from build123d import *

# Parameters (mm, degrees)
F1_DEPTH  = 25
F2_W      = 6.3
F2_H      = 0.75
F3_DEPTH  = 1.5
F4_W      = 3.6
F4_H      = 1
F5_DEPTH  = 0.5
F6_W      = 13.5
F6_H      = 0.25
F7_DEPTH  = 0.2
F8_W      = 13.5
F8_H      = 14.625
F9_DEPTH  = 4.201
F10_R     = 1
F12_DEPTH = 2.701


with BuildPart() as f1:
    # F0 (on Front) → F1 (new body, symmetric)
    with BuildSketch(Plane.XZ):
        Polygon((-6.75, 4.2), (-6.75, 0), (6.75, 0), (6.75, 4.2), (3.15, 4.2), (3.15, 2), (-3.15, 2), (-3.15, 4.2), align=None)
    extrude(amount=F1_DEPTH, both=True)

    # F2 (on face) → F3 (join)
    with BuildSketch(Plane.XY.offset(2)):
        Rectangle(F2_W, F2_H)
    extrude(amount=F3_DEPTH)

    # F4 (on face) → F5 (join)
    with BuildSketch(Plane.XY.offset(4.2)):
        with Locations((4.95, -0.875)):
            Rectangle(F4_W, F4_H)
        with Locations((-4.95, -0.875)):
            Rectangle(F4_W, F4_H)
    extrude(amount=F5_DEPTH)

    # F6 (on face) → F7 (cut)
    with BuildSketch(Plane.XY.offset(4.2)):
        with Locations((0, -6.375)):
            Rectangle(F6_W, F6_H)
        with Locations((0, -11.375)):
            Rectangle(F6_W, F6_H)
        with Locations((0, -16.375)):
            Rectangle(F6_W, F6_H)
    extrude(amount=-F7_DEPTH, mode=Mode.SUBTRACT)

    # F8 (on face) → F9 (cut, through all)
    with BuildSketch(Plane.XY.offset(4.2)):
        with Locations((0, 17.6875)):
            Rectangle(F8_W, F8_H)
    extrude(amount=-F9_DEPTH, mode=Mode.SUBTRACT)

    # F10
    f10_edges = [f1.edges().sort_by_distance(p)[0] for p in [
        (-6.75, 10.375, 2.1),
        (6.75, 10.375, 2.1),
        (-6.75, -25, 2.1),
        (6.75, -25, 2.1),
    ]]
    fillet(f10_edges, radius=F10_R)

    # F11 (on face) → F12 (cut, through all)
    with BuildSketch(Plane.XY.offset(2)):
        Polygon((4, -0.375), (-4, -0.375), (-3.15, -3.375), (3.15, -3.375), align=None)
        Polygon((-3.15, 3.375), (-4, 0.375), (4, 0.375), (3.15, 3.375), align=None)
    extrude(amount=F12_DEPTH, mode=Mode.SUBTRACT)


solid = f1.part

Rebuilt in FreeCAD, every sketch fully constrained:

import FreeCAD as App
import Part
import Sketcher

V = App.Vector
Q = App.Units.Quantity


def edges_at(feature, points):
    """Names of the edges that pass closest to the given points."""
    edges = feature.Shape.Edges
    near = lambda p: min(range(len(edges)), key=lambda i: edges[i].distToShape(Part.Vertex(*p))[0])
    return sorted({f"Edge{near(p) + 1}" for p in points})

doc = App.newDocument("Part")
body = doc.addObject("PartDesign::Body", "Body")

# Sketch on XZ plane
sketch1 = doc.addObject("Sketcher::SketchObject", "Sketch")
body.addObject(sketch1)
sketch1.AttachmentSupport = (doc.XZ_Plane, [""])
sketch1.MapMode = "FlatFace"
sketch1.addGeometry(Part.LineSegment(V(-6.8, 4.2, 0), V(-6.8, 0, 0)), False)
sketch1.addGeometry(Part.LineSegment(V(-6.8, 0, 0), V(6.8, 0, 0)), False)
sketch1.addGeometry(Part.LineSegment(V(6.8, 0, 0), V(6.8, 4.2, 0)), False)
sketch1.addGeometry(Part.LineSegment(V(6.8, 4.2, 0), V(3.1, 4.2, 0)), False)
sketch1.addGeometry(Part.LineSegment(V(3.1, 4.2, 0), V(3.1, 2, 0)), False)
sketch1.addGeometry(Part.LineSegment(V(3.1, 2, 0), V(-3.1, 2, 0)), False)
sketch1.addGeometry(Part.LineSegment(V(-3.1, 2, 0), V(-3.1, 4.2, 0)), False)
sketch1.addGeometry(Part.LineSegment(V(-3.1, 4.2, 0), V(-6.8, 4.2, 0)), False)
sketch1.addConstraint(Sketcher.Constraint("Coincident", 0, 2, 1, 1))
sketch1.addConstraint(Sketcher.Constraint("Coincident", 1, 2, 2, 1))
sketch1.addConstraint(Sketcher.Constraint("Coincident", 2, 2, 3, 1))
sketch1.addConstraint(Sketcher.Constraint("Coincident", 3, 2, 4, 1))
sketch1.addConstraint(Sketcher.Constraint("Coincident", 4, 2, 5, 1))
sketch1.addConstraint(Sketcher.Constraint("Coincident", 5, 2, 6, 1))
sketch1.addConstraint(Sketcher.Constraint("Coincident", 6, 2, 7, 1))
sketch1.addConstraint(Sketcher.Constraint("Coincident", 7, 2, 0, 1))
sketch1.addConstraint(Sketcher.Constraint("Vertical", 0))
sketch1.addConstraint(Sketcher.Constraint("Horizontal", 1))
sketch1.addConstraint(Sketcher.Constraint("Vertical", 2))
sketch1.addConstraint(Sketcher.Constraint("Horizontal", 3))
sketch1.addConstraint(Sketcher.Constraint("Vertical", 4))
sketch1.addConstraint(Sketcher.Constraint("Horizontal", 5))
sketch1.addConstraint(Sketcher.Constraint("Vertical", 6))
sketch1.addConstraint(Sketcher.Constraint("Horizontal", 7))
sketch1.addConstraint(Sketcher.Constraint("Symmetric", 0, 2, 1, 2, -1, 1))
sketch1.addConstraint(Sketcher.Constraint("Symmetric", 3, 2, 6, 2, -2))
sketch1.addConstraint(Sketcher.Constraint("DistanceX", 1, 1, 1, 2, Q("13.5 mm")))
sketch1.addConstraint(Sketcher.Constraint("DistanceX", 3, 2, 3, 1, Q("3.6 mm")))
sketch1.addConstraint(Sketcher.Constraint("DistanceY", 0, 2, 0, 1, Q("4.2 mm")))
sketch1.addConstraint(Sketcher.Constraint("DistanceY", 4, 2, 4, 1, Q("2.2 mm")))
pad1 = doc.addObject("PartDesign::Pad", "Pad")
body.addObject(pad1)
pad1.Profile = sketch1
pad1.Length = 50
pad1.Midplane = True

# Sketch on XY plane
sketch2 = doc.addObject("Sketcher::SketchObject", "Sketch001")
body.addObject(sketch2)
sketch2.AttachmentSupport = (doc.XY_Plane, [""])
sketch2.MapMode = "FlatFace"
sketch2.AttachmentOffset = App.Placement(V(0, 0, 2), App.Rotation())
sketch2.addGeometry(Part.LineSegment(V(-3.1, 0.4, 0), V(-3.1, -0.4, 0)), False)
sketch2.addGeometry(Part.LineSegment(V(-3.1, -0.4, 0), V(3.1, -0.4, 0)), False)
sketch2.addGeometry(Part.LineSegment(V(3.1, -0.4, 0), V(3.1, 0.4, 0)), False)
sketch2.addGeometry(Part.LineSegment(V(3.1, 0.4, 0), V(-3.1, 0.4, 0)), False)
sketch2.addConstraint(Sketcher.Constraint("Coincident", 0, 2, 1, 1))
sketch2.addConstraint(Sketcher.Constraint("Coincident", 1, 2, 2, 1))
sketch2.addConstraint(Sketcher.Constraint("Coincident", 2, 2, 3, 1))
sketch2.addConstraint(Sketcher.Constraint("Coincident", 3, 2, 0, 1))
sketch2.addConstraint(Sketcher.Constraint("Vertical", 0))
sketch2.addConstraint(Sketcher.Constraint("Horizontal", 1))
sketch2.addConstraint(Sketcher.Constraint("Vertical", 2))
sketch2.addConstraint(Sketcher.Constraint("Horizontal", 3))
sketch2.addConstraint(Sketcher.Constraint("Symmetric", 0, 2, 2, 2, -1, 1))
sketch2.addConstraint(Sketcher.Constraint("DistanceX", 1, 1, 1, 2, Q("6.3 mm")))
sketch2.addConstraint(Sketcher.Constraint("DistanceY", 0, 2, 0, 1, Q("0.75 mm")))
pad2 = doc.addObject("PartDesign::Pad", "Pad001")
body.addObject(pad2)
pad2.Profile = sketch2
pad2.Length = 1.5

# Sketch on XY plane
sketch3 = doc.addObject("Sketcher::SketchObject", "Sketch002")
body.addObject(sketch3)
sketch3.AttachmentSupport = (doc.XY_Plane, [""])
sketch3.MapMode = "FlatFace"
sketch3.AttachmentOffset = App.Placement(V(0, 0, 4.2), App.Rotation())
sketch3.addGeometry(Part.LineSegment(V(3.1, -0.4, 0), V(3.1, -1.4, 0)), False)
sketch3.addGeometry(Part.LineSegment(V(3.1, -1.4, 0), V(6.8, -1.4, 0)), False)
sketch3.addGeometry(Part.LineSegment(V(6.8, -1.4, 0), V(6.8, -0.4, 0)), False)
sketch3.addGeometry(Part.LineSegment(V(6.8, -0.4, 0), V(3.1, -0.4, 0)), False)
sketch3.addGeometry(Part.LineSegment(V(-6.8, -0.4, 0), V(-6.8, -1.4, 0)), False)
sketch3.addGeometry(Part.LineSegment(V(-6.8, -1.4, 0), V(-3.1, -1.4, 0)), False)
sketch3.addGeometry(Part.LineSegment(V(-3.1, -1.4, 0), V(-3.1, -0.4, 0)), False)
sketch3.addGeometry(Part.LineSegment(V(-3.1, -0.4, 0), V(-6.8, -0.4, 0)), False)
sketch3.addConstraint(Sketcher.Constraint("Coincident", 0, 2, 1, 1))
sketch3.addConstraint(Sketcher.Constraint("Coincident", 1, 2, 2, 1))
sketch3.addConstraint(Sketcher.Constraint("Coincident", 2, 2, 3, 1))
sketch3.addConstraint(Sketcher.Constraint("Coincident", 3, 2, 0, 1))
sketch3.addConstraint(Sketcher.Constraint("Coincident", 4, 2, 5, 1))
sketch3.addConstraint(Sketcher.Constraint("Coincident", 5, 2, 6, 1))
sketch3.addConstraint(Sketcher.Constraint("Coincident", 6, 2, 7, 1))
sketch3.addConstraint(Sketcher.Constraint("Coincident", 7, 2, 4, 1))
sketch3.addConstraint(Sketcher.Constraint("Vertical", 0))
sketch3.addConstraint(Sketcher.Constraint("Horizontal", 1))
sketch3.addConstraint(Sketcher.Constraint("Vertical", 2))
sketch3.addConstraint(Sketcher.Constraint("Horizontal", 3))
sketch3.addConstraint(Sketcher.Constraint("Vertical", 4))
sketch3.addConstraint(Sketcher.Constraint("Horizontal", 5))
sketch3.addConstraint(Sketcher.Constraint("Vertical", 6))
sketch3.addConstraint(Sketcher.Constraint("Horizontal", 7))
sketch3.addConstraint(Sketcher.Constraint("Symmetric", 1, 2, 4, 2, -2))
sketch3.addConstraint(Sketcher.Constraint("Symmetric", 3, 2, 6, 2, -2))
sketch3.addConstraint(Sketcher.Constraint("DistanceY", 0, 2, 0, 1, Q("1 mm")))
sketch3.addConstraint(Sketcher.Constraint("DistanceX", 1, 1, 1, 2, Q("3.6 mm")))
sketch3.addConstraint(Sketcher.Constraint("DistanceX", 4, 2, 0, 2, Q("9.9 mm")))
sketch3.addConstraint(Sketcher.Constraint("DistanceY", 0, 2, -1, 1, Q("1.375 mm")))
pad3 = doc.addObject("PartDesign::Pad", "Pad002")
body.addObject(pad3)
pad3.Profile = sketch3
pad3.Length = 0.5

# Sketch on XY plane
sketch4 = doc.addObject("Sketcher::SketchObject", "Sketch003")
body.addObject(sketch4)
sketch4.AttachmentSupport = (doc.XY_Plane, [""])
sketch4.MapMode = "FlatFace"
sketch4.AttachmentOffset = App.Placement(V(0, 0, 4.2), App.Rotation())
sketch4.addGeometry(Part.LineSegment(V(-6.75, -6.25, 0), V(-6.75, -6.5, 0)), False)
sketch4.addGeometry(Part.LineSegment(V(-6.75, -6.5, 0), V(6.75, -6.5, 0)), False)
sketch4.addGeometry(Part.LineSegment(V(6.75, -6.5, 0), V(6.75, -6.25, 0)), False)
sketch4.addGeometry(Part.LineSegment(V(6.75, -6.25, 0), V(-6.75, -6.25, 0)), False)
sketch4.addGeometry(Part.LineSegment(V(-6.75, -11.25, 0), V(-6.75, -11.5, 0)), False)
sketch4.addGeometry(Part.LineSegment(V(-6.75, -11.5, 0), V(6.75, -11.5, 0)), False)
sketch4.addGeometry(Part.LineSegment(V(6.75, -11.5, 0), V(6.75, -11.25, 0)), False)
sketch4.addGeometry(Part.LineSegment(V(6.75, -11.25, 0), V(-6.75, -11.25, 0)), False)
sketch4.addGeometry(Part.LineSegment(V(-6.75, -16.25, 0), V(-6.75, -16.5, 0)), False)
sketch4.addGeometry(Part.LineSegment(V(-6.75, -16.5, 0), V(6.75, -16.5, 0)), False)
sketch4.addGeometry(Part.LineSegment(V(6.75, -16.5, 0), V(6.75, -16.25, 0)), False)
sketch4.addGeometry(Part.LineSegment(V(6.75, -16.25, 0), V(-6.75, -16.25, 0)), False)
sketch4.addConstraint(Sketcher.Constraint("Coincident", 0, 2, 1, 1))
sketch4.addConstraint(Sketcher.Constraint("Coincident", 1, 2, 2, 1))
sketch4.addConstraint(Sketcher.Constraint("Coincident", 2, 2, 3, 1))
sketch4.addConstraint(Sketcher.Constraint("Coincident", 3, 2, 0, 1))
sketch4.addConstraint(Sketcher.Constraint("Coincident", 4, 2, 5, 1))
sketch4.addConstraint(Sketcher.Constraint("Coincident", 5, 2, 6, 1))
sketch4.addConstraint(Sketcher.Constraint("Coincident", 6, 2, 7, 1))
sketch4.addConstraint(Sketcher.Constraint("Coincident", 7, 2, 4, 1))
sketch4.addConstraint(Sketcher.Constraint("Coincident", 8, 2, 9, 1))
sketch4.addConstraint(Sketcher.Constraint("Coincident", 9, 2, 10, 1))
sketch4.addConstraint(Sketcher.Constraint("Coincident", 10, 2, 11, 1))
sketch4.addConstraint(Sketcher.Constraint("Coincident", 11, 2, 8, 1))
sketch4.addConstraint(Sketcher.Constraint("Vertical", 0))
sketch4.addConstraint(Sketcher.Constraint("Horizontal", 1))
sketch4.addConstraint(Sketcher.Constraint("Vertical", 2))
sketch4.addConstraint(Sketcher.Constraint("Horizontal", 3))
sketch4.addConstraint(Sketcher.Constraint("Vertical", 4))
sketch4.addConstraint(Sketcher.Constraint("Horizontal", 5))
sketch4.addConstraint(Sketcher.Constraint("Vertical", 6))
sketch4.addConstraint(Sketcher.Constraint("Horizontal", 7))
sketch4.addConstraint(Sketcher.Constraint("Vertical", 8))
sketch4.addConstraint(Sketcher.Constraint("Horizontal", 9))
sketch4.addConstraint(Sketcher.Constraint("Vertical", 10))
sketch4.addConstraint(Sketcher.Constraint("Horizontal", 11))
sketch4.addConstraint(Sketcher.Constraint("Vertical", 3, 2, 4, 2))
sketch4.addConstraint(Sketcher.Constraint("Vertical", 2, 2, 5, 2))
sketch4.addConstraint(Sketcher.Constraint("Vertical", 7, 2, 8, 2))
sketch4.addConstraint(Sketcher.Constraint("Vertical", 6, 2, 9, 2))
sketch4.addConstraint(Sketcher.Constraint("Equal", 2, 4))
sketch4.addConstraint(Sketcher.Constraint("Equal", 6, 8))
sketch4.addConstraint(Sketcher.Constraint("DistanceX", 1, 1, 1, 2, Q("13.5 mm")))
sketch4.addConstraint(Sketcher.Constraint("DistanceY", 4, 2, 0, 2, Q("5 mm")))
sketch4.addConstraint(Sketcher.Constraint("DistanceY", 8, 2, 4, 2, Q("5 mm")))
sketch4.addConstraint(Sketcher.Constraint("DistanceY", 0, 2, 0, 1, Q("0.25 mm")))
sketch4.addConstraint(Sketcher.Constraint("DistanceY", 0, 2, -1, 1, Q("6.5 mm")))
sketch4.addConstraint(Sketcher.Constraint("DistanceX", 0, 2, -1, 1, Q("6.75 mm")))
pocket1 = doc.addObject("PartDesign::Pocket", "Pocket")
body.addObject(pocket1)
pocket1.Profile = sketch4
pocket1.Length = 0.2

# Sketch on XY plane
sketch5 = doc.addObject("Sketcher::SketchObject", "Sketch004")
body.addObject(sketch5)
sketch5.AttachmentSupport = (doc.XY_Plane, [""])
sketch5.MapMode = "FlatFace"
sketch5.AttachmentOffset = App.Placement(V(0, 0, 4.2), App.Rotation())
sketch5.addGeometry(Part.LineSegment(V(-7, 25, 0), V(-7, 10, 0)), False)
sketch5.addGeometry(Part.LineSegment(V(-7, 10, 0), V(7, 10, 0)), False)
sketch5.addGeometry(Part.LineSegment(V(7, 10, 0), V(7, 25, 0)), False)
sketch5.addGeometry(Part.LineSegment(V(7, 25, 0), V(-7, 25, 0)), False)
sketch5.addConstraint(Sketcher.Constraint("Coincident", 0, 2, 1, 1))
sketch5.addConstraint(Sketcher.Constraint("Coincident", 1, 2, 2, 1))
sketch5.addConstraint(Sketcher.Constraint("Coincident", 2, 2, 3, 1))
sketch5.addConstraint(Sketcher.Constraint("Coincident", 3, 2, 0, 1))
sketch5.addConstraint(Sketcher.Constraint("Vertical", 0))
sketch5.addConstraint(Sketcher.Constraint("Horizontal", 1))
sketch5.addConstraint(Sketcher.Constraint("Vertical", 2))
sketch5.addConstraint(Sketcher.Constraint("Horizontal", 3))
sketch5.addConstraint(Sketcher.Constraint("DistanceX", 1, 1, 1, 2, Q("13.5 mm")))
sketch5.addConstraint(Sketcher.Constraint("DistanceY", -1, 1, 2, 2, Q("25 mm")))
sketch5.addConstraint(Sketcher.Constraint("DistanceY", 0, 2, 0, 1, Q("14.625 mm")))
sketch5.addConstraint(Sketcher.Constraint("DistanceX", 0, 2, -1, 1, Q("6.75 mm")))
pocket2 = doc.addObject("PartDesign::Pocket", "Pocket001")
body.addObject(pocket2)
pocket2.Profile = sketch5
pocket2.Type = "ThroughAll"
doc.recompute()

fillet = doc.addObject("PartDesign::Fillet", "Fillet")
body.addObject(fillet)
fillet.Base = (pocket2, edges_at(pocket2, [
    (-6.75, 10.375, 2.1),
    (6.75, 10.375, 2.1),
    (-6.75, -25, 2.1),
    (6.75, -25, 2.1),
]))
fillet.Radius = 1

# Sketch on XY plane
sketch6 = doc.addObject("Sketcher::SketchObject", "Sketch005")
body.addObject(sketch6)
sketch6.AttachmentSupport = (doc.XY_Plane, [""])
sketch6.MapMode = "FlatFace"
sketch6.AttachmentOffset = App.Placement(V(0, 0, 2), App.Rotation())
sketch6.addGeometry(Part.LineSegment(V(4, -0.4, 0), V(-4, -0.4, 0)), False)
sketch6.addGeometry(Part.LineSegment(V(-4, -0.4, 0), V(-3.1, -3.4, 0)), False)
sketch6.addGeometry(Part.LineSegment(V(-3.1, -3.4, 0), V(3.1, -3.4, 0)), False)
sketch6.addGeometry(Part.LineSegment(V(3.1, -3.4, 0), V(4, -0.4, 0)), False)
sketch6.addGeometry(Part.LineSegment(V(-3.1, 3.4, 0), V(-4, 0.4, 0)), False)
sketch6.addGeometry(Part.LineSegment(V(-4, 0.4, 0), V(4, 0.4, 0)), False)
sketch6.addGeometry(Part.LineSegment(V(4, 0.4, 0), V(3.1, 3.4, 0)), False)
sketch6.addGeometry(Part.LineSegment(V(3.1, 3.4, 0), V(-3.1, 3.4, 0)), False)
sketch6.addConstraint(Sketcher.Constraint("Coincident", 0, 2, 1, 1))
sketch6.addConstraint(Sketcher.Constraint("Coincident", 1, 2, 2, 1))
sketch6.addConstraint(Sketcher.Constraint("Coincident", 2, 2, 3, 1))
sketch6.addConstraint(Sketcher.Constraint("Coincident", 3, 2, 0, 1))
sketch6.addConstraint(Sketcher.Constraint("Coincident", 4, 2, 5, 1))
sketch6.addConstraint(Sketcher.Constraint("Coincident", 5, 2, 6, 1))
sketch6.addConstraint(Sketcher.Constraint("Coincident", 6, 2, 7, 1))
sketch6.addConstraint(Sketcher.Constraint("Coincident", 7, 2, 4, 1))
sketch6.addConstraint(Sketcher.Constraint("Horizontal", 0))
sketch6.addConstraint(Sketcher.Constraint("Horizontal", 2))
sketch6.addConstraint(Sketcher.Constraint("Horizontal", 5))
sketch6.addConstraint(Sketcher.Constraint("Horizontal", 7))
sketch6.addConstraint(Sketcher.Constraint("Symmetric", 3, 2, 4, 2, -1, 1))
sketch6.addConstraint(Sketcher.Constraint("Symmetric", 1, 2, 6, 2, -1, 1))
sketch6.addConstraint(Sketcher.Constraint("Parallel", 3, 4))
sketch6.addConstraint(Sketcher.Constraint("Parallel", 1, 6))
sketch6.addConstraint(Sketcher.Constraint("Vertical", 0, 2, 4, 2))
sketch6.addConstraint(Sketcher.Constraint("Vertical", 2, 2, 6, 2))
sketch6.addConstraint(Sketcher.Constraint("DistanceX", 0, 2, 0, 1, Q("8 mm")))
sketch6.addConstraint(Sketcher.Constraint("DistanceX", 2, 1, 2, 2, Q("6.3 mm")))
sketch6.addConstraint(Sketcher.Constraint("DistanceY", 1, 2, 0, 2, Q("3 mm")))
sketch6.addConstraint(Sketcher.Constraint("DistanceY", 0, 2, 4, 2, Q("0.75 mm")))
pocket3 = doc.addObject("PartDesign::Pocket", "Pocket002")
body.addObject(pocket3)
pocket3.Profile = sketch6
pocket3.Type = "ThroughAll"
pocket3.Reversed = True

doc.recompute()
